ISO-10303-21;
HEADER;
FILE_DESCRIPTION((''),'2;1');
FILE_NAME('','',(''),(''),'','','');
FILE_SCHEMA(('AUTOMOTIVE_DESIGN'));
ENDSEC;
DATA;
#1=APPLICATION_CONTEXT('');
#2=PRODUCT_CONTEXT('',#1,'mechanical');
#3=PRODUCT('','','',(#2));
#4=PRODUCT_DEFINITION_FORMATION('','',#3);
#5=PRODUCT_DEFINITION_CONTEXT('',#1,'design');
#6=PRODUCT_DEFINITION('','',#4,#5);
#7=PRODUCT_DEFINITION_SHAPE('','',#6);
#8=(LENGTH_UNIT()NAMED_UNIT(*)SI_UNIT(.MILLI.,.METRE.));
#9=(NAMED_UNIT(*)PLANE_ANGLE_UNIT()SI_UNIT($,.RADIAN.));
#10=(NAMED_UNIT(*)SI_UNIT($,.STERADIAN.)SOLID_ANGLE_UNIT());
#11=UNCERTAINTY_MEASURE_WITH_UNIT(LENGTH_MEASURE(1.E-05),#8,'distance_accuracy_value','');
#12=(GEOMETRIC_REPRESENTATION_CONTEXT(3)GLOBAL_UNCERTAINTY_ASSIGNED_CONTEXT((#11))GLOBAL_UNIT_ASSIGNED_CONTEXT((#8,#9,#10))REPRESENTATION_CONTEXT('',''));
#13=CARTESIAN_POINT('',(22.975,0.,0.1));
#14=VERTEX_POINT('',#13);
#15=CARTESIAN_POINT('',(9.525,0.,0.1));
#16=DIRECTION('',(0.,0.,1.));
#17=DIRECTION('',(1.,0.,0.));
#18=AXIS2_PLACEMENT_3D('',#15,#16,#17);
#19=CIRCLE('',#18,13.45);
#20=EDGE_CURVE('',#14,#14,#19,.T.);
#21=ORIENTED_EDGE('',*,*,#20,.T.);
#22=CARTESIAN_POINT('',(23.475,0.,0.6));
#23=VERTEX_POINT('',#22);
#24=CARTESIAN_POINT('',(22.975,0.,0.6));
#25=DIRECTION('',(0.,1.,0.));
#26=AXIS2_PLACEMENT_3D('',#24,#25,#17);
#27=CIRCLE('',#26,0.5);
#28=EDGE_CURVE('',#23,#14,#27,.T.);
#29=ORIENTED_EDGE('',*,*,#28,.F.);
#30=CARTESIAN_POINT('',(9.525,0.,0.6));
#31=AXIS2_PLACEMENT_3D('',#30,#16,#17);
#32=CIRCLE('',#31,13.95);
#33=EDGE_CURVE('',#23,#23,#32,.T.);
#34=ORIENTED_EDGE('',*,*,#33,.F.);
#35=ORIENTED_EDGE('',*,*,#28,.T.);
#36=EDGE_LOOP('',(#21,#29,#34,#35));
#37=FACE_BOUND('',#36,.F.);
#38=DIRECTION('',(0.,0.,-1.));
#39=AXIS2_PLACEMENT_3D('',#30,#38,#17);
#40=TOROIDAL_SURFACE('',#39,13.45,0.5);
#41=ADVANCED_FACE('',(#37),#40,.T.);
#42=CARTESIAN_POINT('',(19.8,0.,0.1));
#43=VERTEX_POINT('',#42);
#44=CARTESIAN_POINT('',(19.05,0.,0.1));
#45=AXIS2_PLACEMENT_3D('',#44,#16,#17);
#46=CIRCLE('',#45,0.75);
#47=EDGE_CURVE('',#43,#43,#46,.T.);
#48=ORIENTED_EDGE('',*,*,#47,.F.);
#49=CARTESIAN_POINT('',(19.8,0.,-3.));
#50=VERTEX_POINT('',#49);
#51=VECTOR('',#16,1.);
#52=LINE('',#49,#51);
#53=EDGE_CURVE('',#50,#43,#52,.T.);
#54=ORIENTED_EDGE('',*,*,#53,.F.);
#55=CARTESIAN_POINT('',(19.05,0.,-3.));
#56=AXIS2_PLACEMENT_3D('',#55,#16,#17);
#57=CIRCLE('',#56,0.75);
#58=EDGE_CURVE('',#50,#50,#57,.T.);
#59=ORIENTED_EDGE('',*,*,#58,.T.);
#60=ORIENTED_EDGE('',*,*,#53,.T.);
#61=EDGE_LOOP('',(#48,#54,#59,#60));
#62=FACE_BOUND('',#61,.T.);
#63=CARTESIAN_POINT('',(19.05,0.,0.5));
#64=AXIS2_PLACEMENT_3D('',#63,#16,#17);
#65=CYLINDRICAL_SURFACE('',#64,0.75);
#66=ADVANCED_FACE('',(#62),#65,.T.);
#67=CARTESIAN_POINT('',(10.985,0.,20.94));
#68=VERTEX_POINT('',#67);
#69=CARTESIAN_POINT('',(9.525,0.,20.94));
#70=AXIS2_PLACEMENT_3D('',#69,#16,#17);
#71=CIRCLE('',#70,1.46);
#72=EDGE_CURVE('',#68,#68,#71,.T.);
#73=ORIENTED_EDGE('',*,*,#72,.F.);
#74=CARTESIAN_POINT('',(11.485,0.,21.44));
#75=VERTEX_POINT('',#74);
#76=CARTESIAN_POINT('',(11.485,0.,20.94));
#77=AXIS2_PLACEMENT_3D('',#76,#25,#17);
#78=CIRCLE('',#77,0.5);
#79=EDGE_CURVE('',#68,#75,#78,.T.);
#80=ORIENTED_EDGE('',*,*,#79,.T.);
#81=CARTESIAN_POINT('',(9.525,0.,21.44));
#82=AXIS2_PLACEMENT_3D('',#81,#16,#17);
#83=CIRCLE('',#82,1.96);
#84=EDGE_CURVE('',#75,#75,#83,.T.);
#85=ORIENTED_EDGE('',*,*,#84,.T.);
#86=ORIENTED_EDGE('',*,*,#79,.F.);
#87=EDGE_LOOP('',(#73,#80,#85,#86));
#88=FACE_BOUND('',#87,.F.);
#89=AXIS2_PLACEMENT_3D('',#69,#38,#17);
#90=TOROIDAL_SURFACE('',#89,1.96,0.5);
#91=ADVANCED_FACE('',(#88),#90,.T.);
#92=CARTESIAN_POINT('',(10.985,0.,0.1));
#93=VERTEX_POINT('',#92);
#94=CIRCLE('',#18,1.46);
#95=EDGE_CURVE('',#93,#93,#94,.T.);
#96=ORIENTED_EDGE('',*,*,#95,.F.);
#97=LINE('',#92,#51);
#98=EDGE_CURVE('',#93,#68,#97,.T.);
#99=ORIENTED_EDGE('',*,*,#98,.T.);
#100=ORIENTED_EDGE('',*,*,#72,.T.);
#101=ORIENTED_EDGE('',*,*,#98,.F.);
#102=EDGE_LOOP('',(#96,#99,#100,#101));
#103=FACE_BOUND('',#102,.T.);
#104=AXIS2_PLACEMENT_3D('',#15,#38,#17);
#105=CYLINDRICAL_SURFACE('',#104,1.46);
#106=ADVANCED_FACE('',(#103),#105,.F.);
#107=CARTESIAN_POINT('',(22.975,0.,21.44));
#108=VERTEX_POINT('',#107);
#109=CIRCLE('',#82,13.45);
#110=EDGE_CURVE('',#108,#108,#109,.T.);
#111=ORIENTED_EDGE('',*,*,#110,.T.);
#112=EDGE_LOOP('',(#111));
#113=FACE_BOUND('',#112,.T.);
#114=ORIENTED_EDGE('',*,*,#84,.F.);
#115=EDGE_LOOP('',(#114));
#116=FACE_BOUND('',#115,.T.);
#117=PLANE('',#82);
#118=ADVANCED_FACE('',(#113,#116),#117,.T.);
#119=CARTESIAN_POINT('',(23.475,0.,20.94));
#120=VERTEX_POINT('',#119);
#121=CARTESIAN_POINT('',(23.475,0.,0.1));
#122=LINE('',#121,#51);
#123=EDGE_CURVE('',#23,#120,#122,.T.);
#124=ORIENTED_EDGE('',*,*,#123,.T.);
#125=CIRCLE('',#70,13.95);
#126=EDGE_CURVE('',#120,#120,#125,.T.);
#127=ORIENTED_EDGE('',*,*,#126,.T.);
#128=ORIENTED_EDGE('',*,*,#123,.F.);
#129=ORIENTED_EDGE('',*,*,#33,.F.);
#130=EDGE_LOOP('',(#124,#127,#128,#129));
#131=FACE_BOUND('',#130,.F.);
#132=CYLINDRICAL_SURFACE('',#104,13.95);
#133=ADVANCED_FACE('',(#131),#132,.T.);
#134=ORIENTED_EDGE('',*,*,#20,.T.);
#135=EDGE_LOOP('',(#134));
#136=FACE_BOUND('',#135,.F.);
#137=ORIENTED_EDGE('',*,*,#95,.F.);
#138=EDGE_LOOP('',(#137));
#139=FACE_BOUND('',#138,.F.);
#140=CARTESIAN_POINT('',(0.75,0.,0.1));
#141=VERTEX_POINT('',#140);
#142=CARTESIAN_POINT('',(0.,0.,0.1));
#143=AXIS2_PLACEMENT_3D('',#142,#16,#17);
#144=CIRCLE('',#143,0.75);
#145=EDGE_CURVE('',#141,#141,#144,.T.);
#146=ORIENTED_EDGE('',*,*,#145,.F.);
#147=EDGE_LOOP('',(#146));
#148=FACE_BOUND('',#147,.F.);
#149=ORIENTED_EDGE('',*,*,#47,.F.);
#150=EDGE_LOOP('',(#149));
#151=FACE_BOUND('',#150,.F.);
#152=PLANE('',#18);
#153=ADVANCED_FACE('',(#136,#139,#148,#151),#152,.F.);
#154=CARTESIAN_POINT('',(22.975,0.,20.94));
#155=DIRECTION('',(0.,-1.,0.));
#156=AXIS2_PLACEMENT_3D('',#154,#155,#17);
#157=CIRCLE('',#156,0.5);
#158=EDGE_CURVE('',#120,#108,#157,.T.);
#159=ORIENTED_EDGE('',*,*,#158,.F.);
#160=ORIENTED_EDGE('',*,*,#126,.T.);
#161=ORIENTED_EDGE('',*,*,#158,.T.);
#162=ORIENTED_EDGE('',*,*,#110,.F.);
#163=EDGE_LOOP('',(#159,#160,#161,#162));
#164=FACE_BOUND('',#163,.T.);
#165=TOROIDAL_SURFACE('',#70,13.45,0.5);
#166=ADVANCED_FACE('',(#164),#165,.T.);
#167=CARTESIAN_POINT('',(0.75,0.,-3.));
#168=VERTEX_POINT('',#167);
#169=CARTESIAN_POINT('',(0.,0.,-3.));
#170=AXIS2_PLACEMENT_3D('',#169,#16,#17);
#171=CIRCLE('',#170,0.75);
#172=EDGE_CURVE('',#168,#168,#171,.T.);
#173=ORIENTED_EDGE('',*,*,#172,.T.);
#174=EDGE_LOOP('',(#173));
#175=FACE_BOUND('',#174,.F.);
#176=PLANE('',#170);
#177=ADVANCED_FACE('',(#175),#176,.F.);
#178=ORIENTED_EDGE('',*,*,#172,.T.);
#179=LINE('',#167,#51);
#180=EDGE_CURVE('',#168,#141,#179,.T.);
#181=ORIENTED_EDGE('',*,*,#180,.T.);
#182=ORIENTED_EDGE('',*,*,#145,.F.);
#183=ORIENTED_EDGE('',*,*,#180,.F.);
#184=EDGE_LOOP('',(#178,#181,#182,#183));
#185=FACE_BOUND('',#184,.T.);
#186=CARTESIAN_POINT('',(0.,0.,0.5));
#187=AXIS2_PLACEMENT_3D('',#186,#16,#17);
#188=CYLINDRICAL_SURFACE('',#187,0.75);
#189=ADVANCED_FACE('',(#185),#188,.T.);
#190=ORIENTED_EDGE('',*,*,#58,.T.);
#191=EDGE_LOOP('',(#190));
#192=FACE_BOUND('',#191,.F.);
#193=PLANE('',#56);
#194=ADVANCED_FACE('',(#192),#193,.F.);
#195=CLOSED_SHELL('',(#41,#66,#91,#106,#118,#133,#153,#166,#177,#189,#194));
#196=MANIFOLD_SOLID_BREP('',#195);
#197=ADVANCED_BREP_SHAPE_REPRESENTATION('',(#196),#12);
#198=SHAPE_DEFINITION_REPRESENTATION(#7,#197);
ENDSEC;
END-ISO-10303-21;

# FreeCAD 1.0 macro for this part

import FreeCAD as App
import Part
import Sketcher
Q = App.Units.Quantity


def edges_at(feature, points):
    """Names of the edges that pass closest to the given points."""
    edges = feature.Shape.Edges
    near = lambda p: min(range(len(edges)), key=lambda i: edges[i].distToShape(Part.Vertex(*p))[0])
    return sorted({f"Edge{near(p) + 1}" for p in points})

doc = App.newDocument("Part")
body = doc.addObject("PartDesign::Body", "Body")
body.AllowCompound = True

# Sketch on XY plane
sketch1 = body.newObject("Sketcher::SketchObject", "Sketch")
sketch1.AttachmentSupport = (doc.getObject("XY_Plane"), [""])
sketch1.MapMode = "FlatFace"
sketch1.AttachmentOffset = App.Placement(App.Vector(0, 0, 0.5), App.Rotation())
sketch1.addGeometry(Part.Circle(App.Vector(0, 0, 0), App.Vector(0, 0, 1), 0.8), False)
sketch1.addGeometry(Part.Circle(App.Vector(19.1, 0, 0), App.Vector(0, 0, 1), 0.8), False)
sketch1.addConstraint(Sketcher.Constraint("Coincident", 0, 3, -1, 1))
sketch1.addConstraint(Sketcher.Constraint("Equal", 0, 1))
sketch1.addConstraint(Sketcher.Constraint("PointOnObject", 1, 3, -1))
sketch1.addConstraint(Sketcher.Constraint("Diameter", 0, Q("1.5 mm")))
sketch1.addConstraint(Sketcher.Constraint("DistanceX", -1, 1, 1, 3, Q("19.05 mm")))
pad1 = body.newObject("PartDesign::Pad", "Pad")
pad1.Profile = sketch1
pad1.Type = "TwoLengths"
pad1.Length = 10.67
pad1.Length2 = 3.5
body2 = doc.addObject("PartDesign::Body", "Body001")

# Sketch on XY plane
sketch2 = body2.newObject("Sketcher::SketchObject", "Sketch001")
sketch2.AttachmentSupport = (doc.getObject("XY_Plane001"), [""])
sketch2.MapMode = "FlatFace"
sketch2.AttachmentOffset = App.Placement(App.Vector(0, 0, 0.1), App.Rotation())
sketch2.addGeometry(Part.Circle(App.Vector(9.5, 0, 0), App.Vector(0, 0, 1), 13.9), False)
sketch2.addGeometry(Part.Circle(App.Vector(9.5, 0, 0), App.Vector(0, 0, 1), 1.5), False)
sketch2.addConstraint(Sketcher.Constraint("Coincident", 1, 3, 0, 3))
sketch2.addConstraint(Sketcher.Constraint("PointOnObject", 0, 3, -1))
sketch2.addConstraint(Sketcher.Constraint("Diameter", 0, Q("27.9 mm")))
sketch2.addConstraint(Sketcher.Constraint("Diameter", 1, Q("2.92 mm")))
sketch2.addConstraint(Sketcher.Constraint("DistanceX", -1, 1, 0, 3, Q("9.525 mm")))
pad2 = body2.newObject("PartDesign::Pad", "Pad001")
pad2.Profile = sketch2
pad2.Length = 21.34
doc.recompute()

fillet = body2.newObject("PartDesign::Fillet", "Fillet")
fillet.Base = (pad2, edges_at(pad2, [(8.065, 0, 21.44), (-4.425, 0, 21.44), (-4.425, 0, 0.1)]))
fillet.Radius = 0.5
doc.recompute()

boolean = body2.newObject("PartDesign::Boolean", "Boolean")
boolean.Type = "Fuse"
boolean.addObjects([body])

doc.recompute()
